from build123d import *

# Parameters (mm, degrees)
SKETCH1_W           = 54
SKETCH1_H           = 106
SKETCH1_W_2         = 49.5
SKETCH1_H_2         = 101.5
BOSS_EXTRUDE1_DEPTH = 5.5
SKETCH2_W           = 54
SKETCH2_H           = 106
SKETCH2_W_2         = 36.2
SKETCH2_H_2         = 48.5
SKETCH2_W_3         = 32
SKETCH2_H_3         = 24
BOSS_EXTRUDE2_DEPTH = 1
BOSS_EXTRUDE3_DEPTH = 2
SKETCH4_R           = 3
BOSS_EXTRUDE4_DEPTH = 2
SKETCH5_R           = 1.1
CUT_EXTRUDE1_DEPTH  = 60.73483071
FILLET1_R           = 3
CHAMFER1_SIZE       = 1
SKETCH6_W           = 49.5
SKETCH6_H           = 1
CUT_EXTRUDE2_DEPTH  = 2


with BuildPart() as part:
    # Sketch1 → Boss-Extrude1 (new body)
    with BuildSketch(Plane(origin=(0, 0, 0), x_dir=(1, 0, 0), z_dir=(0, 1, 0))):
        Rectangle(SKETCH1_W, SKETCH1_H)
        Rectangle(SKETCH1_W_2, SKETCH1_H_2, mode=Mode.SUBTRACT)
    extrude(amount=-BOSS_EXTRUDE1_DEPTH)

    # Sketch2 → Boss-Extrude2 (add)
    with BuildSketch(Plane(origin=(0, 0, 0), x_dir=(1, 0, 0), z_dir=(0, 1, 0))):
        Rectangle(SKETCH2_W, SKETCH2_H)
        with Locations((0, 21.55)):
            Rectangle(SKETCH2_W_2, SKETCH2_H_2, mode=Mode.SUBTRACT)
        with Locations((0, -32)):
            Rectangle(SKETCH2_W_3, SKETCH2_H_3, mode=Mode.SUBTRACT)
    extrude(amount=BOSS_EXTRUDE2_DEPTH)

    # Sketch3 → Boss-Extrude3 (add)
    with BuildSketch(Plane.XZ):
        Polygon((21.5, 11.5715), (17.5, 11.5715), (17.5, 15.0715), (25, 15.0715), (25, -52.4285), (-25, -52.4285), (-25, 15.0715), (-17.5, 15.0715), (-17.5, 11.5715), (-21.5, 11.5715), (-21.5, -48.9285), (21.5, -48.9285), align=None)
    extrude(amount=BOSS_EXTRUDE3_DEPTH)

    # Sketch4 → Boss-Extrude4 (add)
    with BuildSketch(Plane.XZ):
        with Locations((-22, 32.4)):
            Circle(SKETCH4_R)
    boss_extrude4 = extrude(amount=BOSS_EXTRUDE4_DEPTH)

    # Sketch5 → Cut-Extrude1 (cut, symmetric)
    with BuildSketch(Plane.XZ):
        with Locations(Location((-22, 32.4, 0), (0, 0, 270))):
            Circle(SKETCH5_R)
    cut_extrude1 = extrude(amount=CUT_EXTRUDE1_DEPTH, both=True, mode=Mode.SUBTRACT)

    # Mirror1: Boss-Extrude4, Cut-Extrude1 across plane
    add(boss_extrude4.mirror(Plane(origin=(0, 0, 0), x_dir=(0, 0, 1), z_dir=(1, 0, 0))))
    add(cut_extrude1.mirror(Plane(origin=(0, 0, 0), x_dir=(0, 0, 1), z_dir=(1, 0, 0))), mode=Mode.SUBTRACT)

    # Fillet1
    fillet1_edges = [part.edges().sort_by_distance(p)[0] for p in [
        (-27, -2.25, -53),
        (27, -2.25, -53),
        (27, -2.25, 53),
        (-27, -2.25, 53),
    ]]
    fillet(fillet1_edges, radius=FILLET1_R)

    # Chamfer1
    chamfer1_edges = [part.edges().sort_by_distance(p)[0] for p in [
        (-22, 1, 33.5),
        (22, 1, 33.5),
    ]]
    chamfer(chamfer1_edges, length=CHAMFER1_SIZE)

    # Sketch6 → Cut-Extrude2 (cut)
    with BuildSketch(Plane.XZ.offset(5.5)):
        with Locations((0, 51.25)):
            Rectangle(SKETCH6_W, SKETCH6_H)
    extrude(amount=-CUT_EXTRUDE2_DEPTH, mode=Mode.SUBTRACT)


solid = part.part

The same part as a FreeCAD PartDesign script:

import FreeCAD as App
import Part
import Sketcher

V = App.Vector
Q = App.Units.Quantity


def edges_at(feature, points):
    """Names of the edges that pass closest to the given points."""
    edges = feature.Shape.Edges
    near = lambda p: min(range(len(edges)), key=lambda i: edges[i].distToShape(Part.Vertex(*p))[0])
    return sorted({f"Edge{near(p) + 1}" for p in points})

doc = App.newDocument("Part")
body = doc.addObject("PartDesign::Body", "Body")

# Sketch on XZ plane
sketch1 = body.newObject("Sketcher::SketchObject", "Sketch")
sketch1.AttachmentSupport = (doc.getObject("XZ_Plane"), [""])
sketch1.MapMode = "FlatFace"
sketch1.addGeometry([
    Part.LineSegment(V(-27, -53, 0), V(-27, 53, 0)),  # 0
    Part.LineSegment(V(-27, 53, 0), V(27, 53, 0)),  # 1
    Part.LineSegment(V(27, 53, 0), V(27, -53, 0)),  # 2
    Part.LineSegment(V(27, -53, 0), V(-27, -53, 0)),  # 3
    Part.LineSegment(V(25, 51, 0), V(-25, 51, 0)),  # 4
    Part.LineSegment(V(-25, 51, 0), V(-25, -51, 0)),  # 5
    Part.LineSegment(V(-25, -51, 0), V(25, -51, 0)),  # 6
    Part.LineSegment(V(25, -51, 0), V(25, 51, 0)),  # 7
], False)
sketch1.addConstraint([
    Sketcher.Constraint("Coincident", 0, 2, 1, 1),
    Sketcher.Constraint("Coincident", 1, 2, 2, 1),
    Sketcher.Constraint("Coincident", 2, 2, 3, 1),
    Sketcher.Constraint("Coincident", 3, 2, 0, 1),
    Sketcher.Constraint("Coincident", 4, 2, 5, 1),
    Sketcher.Constraint("Coincident", 5, 2, 6, 1),
    Sketcher.Constraint("Coincident", 6, 2, 7, 1),
    Sketcher.Constraint("Coincident", 7, 2, 4, 1),
    Sketcher.Constraint("Vertical", 0),
    Sketcher.Constraint("Horizontal", 1),
    Sketcher.Constraint("Vertical", 2),
    Sketcher.Constraint("Horizontal", 3),
    Sketcher.Constraint("Horizontal", 4),
    Sketcher.Constraint("Vertical", 5),
    Sketcher.Constraint("Horizontal", 6),
    Sketcher.Constraint("Vertical", 7),
    Sketcher.Constraint("Symmetric", 0, 2, 2, 2, -1, 1),
    Sketcher.Constraint("Symmetric", 4, 2, 6, 2, -1, 1),
    Sketcher.Constraint("DistanceX", 1, 1, 1, 2, Q("54 mm")),
    Sketcher.Constraint("DistanceY", 0, 1, 0, 2, Q("106 mm")),
    Sketcher.Constraint("DistanceX", 4, 2, 4, 1, Q("49.5 mm")),
    Sketcher.Constraint("DistanceY", 5, 2, 5, 1, Q("101.5 mm")),
])
pad1 = body.newObject("PartDesign::Pad", "Pad")
pad1.Profile = sketch1
pad1.Length = 5.5

# Sketch on XZ plane
sketch2 = body.newObject("Sketcher::SketchObject", "Sketch001")
sketch2.AttachmentSupport = (doc.getObject("XZ_Plane"), [""])
sketch2.MapMode = "FlatFace"
sketch2.addGeometry([
    Part.LineSegment(V(-27, -53, 0), V(-27, 53, 0)),  # 0
    Part.LineSegment(V(-27, 53, 0), V(27, 53, 0)),  # 1
    Part.LineSegment(V(27, 53, 0), V(27, -53, 0)),  # 2
    Part.LineSegment(V(27, -53, 0), V(-27, -53, 0)),  # 3
    Part.LineSegment(V(16, 44, 0), V(-16, 44, 0)),  # 4
    Part.LineSegment(V(-16, 44, 0), V(-16, 20, 0)),  # 5
    Part.LineSegment(V(-16, 20, 0), V(16, 20, 0)),  # 6
    Part.LineSegment(V(16, 20, 0), V(16, 44, 0)),  # 7
    Part.LineSegment(V(18, 3, 0), V(-18, 3, 0)),  # 8
    Part.LineSegment(V(-18, 3, 0), V(-18, -46, 0)),  # 9
    Part.LineSegment(V(-18, -46, 0), V(18, -46, 0)),  # 10
    Part.LineSegment(V(18, -46, 0), V(18, 3, 0)),  # 11
], False)
sketch2.addConstraint([
    Sketcher.Constraint("Coincident", 0, 2, 1, 1),
    Sketcher.Constraint("Coincident", 1, 2, 2, 1),
    Sketcher.Constraint("Coincident", 2, 2, 3, 1),
    Sketcher.Constraint("Coincident", 3, 2, 0, 1),
    Sketcher.Constraint("Coincident", 4, 2, 5, 1),
    Sketcher.Constraint("Coincident", 5, 2, 6, 1),
    Sketcher.Constraint("Coincident", 6, 2, 7, 1),
    Sketcher.Constraint("Coincident", 7, 2, 4, 1),
    Sketcher.Constraint("Coincident", 8, 2, 9, 1),
    Sketcher.Constraint("Coincident", 9, 2, 10, 1),
    Sketcher.Constraint("Coincident", 10, 2, 11, 1),
    Sketcher.Constraint("Coincident", 11, 2, 8, 1),
    Sketcher.Constraint("Vertical", 0),
    Sketcher.Constraint("Horizontal", 1),
    Sketcher.Constraint("Vertical", 2),
    Sketcher.Constraint("Horizontal", 3),
    Sketcher.Constraint("Horizontal", 4),
    Sketcher.Constraint("Vertical", 5),
    Sketcher.Constraint("Horizontal", 6),
    Sketcher.Constraint("Vertical", 7),
    Sketcher.Constraint("Horizontal", 8),
    Sketcher.Constraint("Vertical", 9),
    Sketcher.Constraint("Horizontal", 10),
    Sketcher.Constraint("Vertical", 11),
    Sketcher.Constraint("Symmetric", 0, 2, 2, 2, -1, 1),
    Sketcher.Constraint("DistanceX", 1, 1, 1, 2, Q("54 mm")),
    Sketcher.Constraint("DistanceX", 4, 2, 4, 1, Q("32 mm")),
    Sketcher.Constraint("DistanceY", 0, 1, 0, 2, Q("106 mm")),
    Sketcher.Constraint("DistanceY", 5, 2, 5, 1, Q("24 mm")),
    Sketcher.Constraint("DistanceX", 8, 2, 8, 1, Q("36.2 mm")),
    Sketcher.Constraint("DistanceY", 9, 2, 9, 1, Q("48.5 mm")),
    Sketcher.Constraint("DistanceX", 4, 2, -1, 1, Q("16 mm")),
    Sketcher.Constraint("DistanceY", -1, 1, 4, 2, Q("44 mm")),
    Sketcher.Constraint("DistanceX", 8, 2, -1, 1, Q("18.1 mm")),
    Sketcher.Constraint("DistanceY", -1, 1, 8, 2, Q("2.7 mm")),
])
pad2 = body.newObject("PartDesign::Pad", "Pad001")
pad2.Profile = sketch2
pad2.Length = 1
pad2.Reversed = True

# Sketch on XZ plane
sketch3 = body.newObject("Sketcher::SketchObject", "Sketch002")
sketch3.AttachmentSupport = (doc.getObject("XZ_Plane"), [""])
sketch3.MapMode = "FlatFace"
sketch3.addGeometry([
    Part.LineSegment(V(17.5, 11.6, 0), V(21.5, 11.6, 0)),  # 0
    Part.LineSegment(V(21.5, 11.6, 0), V(21.5, -48.9, 0)),  # 1
    Part.LineSegment(V(21.5, -48.9, 0), V(-21.5, -48.9, 0)),  # 2
    Part.LineSegment(V(-21.5, -48.9, 0), V(-21.5, 11.6, 0)),  # 3
    Part.LineSegment(V(-21.5, 11.6, 0), V(-17.5, 11.6, 0)),  # 4
    Part.LineSegment(V(-17.5, 11.6, 0), V(-17.5, 15.1, 0)),  # 5
    Part.LineSegment(V(-17.5, 15.1, 0), V(-25, 15.1, 0)),  # 6
    Part.LineSegment(V(-25, 15.1, 0), V(-25, -52.4, 0)),  # 7
    Part.LineSegment(V(-25, -52.4, 0), V(25, -52.4, 0)),  # 8
    Part.LineSegment(V(25, -52.4, 0), V(25, 15.1, 0)),  # 9
    Part.LineSegment(V(25, 15.1, 0), V(17.5, 15.1, 0)),  # 10
    Part.LineSegment(V(17.5, 15.1, 0), V(17.5, 11.6, 0)),  # 11
], False)
sketch3.addConstraint([
    Sketcher.Constraint("Coincident", 0, 2, 1, 1),
    Sketcher.Constraint("Coincident", 1, 2, 2, 1),
    Sketcher.Constraint("Coincident", 2, 2, 3, 1),
    Sketcher.Constraint("Coincident", 3, 2, 4, 1),
    Sketcher.Constraint("Coincident", 4, 2, 5, 1),
    Sketcher.Constraint("Coincident", 5, 2, 6, 1),
    Sketcher.Constraint("Coincident", 6, 2, 7, 1),
    Sketcher.Constraint("Coincident", 7, 2, 8, 1),
    Sketcher.Constraint("Coincident", 8, 2, 9, 1),
    Sketcher.Constraint("Coincident", 9, 2, 10, 1),
    Sketcher.Constraint("Coincident", 10, 2, 11, 1),
    Sketcher.Constraint("Coincident", 11, 2, 0, 1),
    Sketcher.Constraint("Horizontal", 0),
    Sketcher.Constraint("Vertical", 1),
    Sketcher.Constraint("Horizontal", 2),
    Sketcher.Constraint("Vertical", 3),
    Sketcher.Constraint("Horizontal", 4),
    Sketcher.Constraint("Vertical", 5),
    Sketcher.Constraint("Horizontal", 6),
    Sketcher.Constraint("Vertical", 7),
    Sketcher.Constraint("Horizontal", 8),
    Sketcher.Constraint("Vertical", 9),
    Sketcher.Constraint("Horizontal", 10),
    Sketcher.Constraint("Vertical", 11),
    Sketcher.Constraint("Symmetric", 0, 2, 3, 2, -2),
    Sketcher.Constraint("Symmetric", 6, 2, 9, 2, -2),
    Sketcher.Constraint("Equal", 0, 4),
    Sketcher.Constraint("DistanceX", 0, 1, 0, 2, Q("4 mm")),
    Sketcher.Constraint("DistanceX", 2, 2, 2, 1, Q("43 mm")),
    Sketcher.Constraint("DistanceX", 8, 1, 8, 2, Q("50 mm")),
    Sketcher.Constraint("DistanceY", 1, 2, 1, 1, Q("60.5 mm")),
    Sketcher.Constraint("DistanceY", 5, 1, 5, 2, Q("3.5 mm")),
    Sketcher.Constraint("DistanceY", 7, 2, 7, 1, Q("67.5 mm")),
    Sketcher.Constraint("DistanceY", -1, 1, 0, 2, Q("11.5715 mm")),
])
pad3 = body.newObject("PartDesign::Pad", "Pad002")
pad3.Profile = sketch3
pad3.Length = 2

# Sketch on XZ plane
sketch4 = body.newObject("Sketcher::SketchObject", "Sketch003")
sketch4.AttachmentSupport = (doc.getObject("XZ_Plane"), [""])
sketch4.MapMode = "FlatFace"
sketch4.addGeometry(Part.Circle(V(-22, 32.4, 0), V(0, 0, 1), 3), False)
sketch4.addConstraint([
    Sketcher.Constraint("Diameter", 0, Q("6 mm")),
    Sketcher.Constraint("DistanceX", 0, 3, -1, 1, Q("22 mm")),
    Sketcher.Constraint("DistanceY", -1, 1, 0, 3, Q("32.4 mm")),
])
pad4 = body.newObject("PartDesign::Pad", "Pad003")
pad4.Profile = sketch4
pad4.Length = 2

# Sketch on XZ plane
sketch5 = body.newObject("Sketcher::SketchObject", "Sketch004")
sketch5.AttachmentSupport = (doc.getObject("XZ_Plane"), [""])
sketch5.MapMode = "FlatFace"
sketch5.addGeometry(Part.Circle(V(-22, 32.4, 0), V(0, 0, 1), 1.1), False)
sketch5.addConstraint([
    Sketcher.Constraint("Diameter", 0, Q("2.2 mm")),
    Sketcher.Constraint("DistanceX", 0, 3, -1, 1, Q("22 mm")),
    Sketcher.Constraint("DistanceY", -1, 1, 0, 3, Q("32.4 mm")),
])
pocket1 = body.newObject("PartDesign::Pocket", "Pocket")
pocket1.Profile = sketch5
pocket1.Length = 121.469661
pocket1.Midplane = True
doc.recompute()

mirrored = body.newObject("PartDesign::Mirrored", "Mirrored")
mirrored.Originals = [pad4, pocket1]
mirrored.MirrorPlane = (doc.getObject("YZ_Plane"), [""])
body.Tip = mirrored
doc.recompute()

fillet = body.newObject("PartDesign::Fillet", "Fillet")
fillet.Base = (mirrored, edges_at(mirrored, [
    (-27, -2.25, -53),
    (27, -2.25, -53),
    (27, -2.25, 53),
    (-27, -2.25, 53),
]))
fillet.Radius = 3
doc.recompute()

chamfer = body.newObject("PartDesign::Chamfer", "Chamfer")
chamfer.Base = (fillet, edges_at(fillet, [(-22, 1, 33.5), (22, 1, 33.5)]))
chamfer.Size = 1

# Sketch on XZ plane
sketch6 = body.newObject("Sketcher::SketchObject", "Sketch005")
sketch6.AttachmentSupport = (doc.getObject("XZ_Plane"), [""])
sketch6.MapMode = "FlatFace"
sketch6.AttachmentOffset = App.Placement(V(0, 0, 5.5), App.Rotation())
sketch6.addGeometry([
    Part.LineSegment(V(-24.8, 51.8, 0), V(-24.8, 50.8, 0)),
    Part.LineSegment(V(-24.8, 50.8, 0), V(24.8, 50.8, 0)),
    Part.LineSegment(V(24.8, 50.8, 0), V(24.8, 51.8, 0)),
    Part.LineSegment(V(24.8, 51.8, 0), V(-24.8, 51.8, 0)),
], False)
sketch6.addConstraint([
    Sketcher.Constraint("Coincident", 0, 2, 1, 1),
    Sketcher.Constraint("Coincident", 1, 2, 2, 1),
    Sketcher.Constraint("Coincident", 2, 2, 3, 1),
    Sketcher.Constraint("Coincident", 3, 2, 0, 1),
    Sketcher.Constraint("Vertical", 0),
    Sketcher.Constraint("Horizontal", 1),
    Sketcher.Constraint("Vertical", 2),
    Sketcher.Constraint("Horizontal", 3),
    Sketcher.Constraint("DistanceY", 0, 2, 0, 1, Q("1 mm")),
    Sketcher.Constraint("DistanceX", 1, 1, 1, 2, Q("49.5 mm")),
    Sketcher.Constraint("DistanceX", 0, 2, -1, 1, Q("24.75 mm")),
    Sketcher.Constraint("DistanceY", -1, 1, 0, 2, Q("50.75 mm")),
])
pocket2 = body.newObject("PartDesign::Pocket", "Pocket001")
pocket2.Profile = sketch6
pocket2.Length = 2

doc.recompute()
